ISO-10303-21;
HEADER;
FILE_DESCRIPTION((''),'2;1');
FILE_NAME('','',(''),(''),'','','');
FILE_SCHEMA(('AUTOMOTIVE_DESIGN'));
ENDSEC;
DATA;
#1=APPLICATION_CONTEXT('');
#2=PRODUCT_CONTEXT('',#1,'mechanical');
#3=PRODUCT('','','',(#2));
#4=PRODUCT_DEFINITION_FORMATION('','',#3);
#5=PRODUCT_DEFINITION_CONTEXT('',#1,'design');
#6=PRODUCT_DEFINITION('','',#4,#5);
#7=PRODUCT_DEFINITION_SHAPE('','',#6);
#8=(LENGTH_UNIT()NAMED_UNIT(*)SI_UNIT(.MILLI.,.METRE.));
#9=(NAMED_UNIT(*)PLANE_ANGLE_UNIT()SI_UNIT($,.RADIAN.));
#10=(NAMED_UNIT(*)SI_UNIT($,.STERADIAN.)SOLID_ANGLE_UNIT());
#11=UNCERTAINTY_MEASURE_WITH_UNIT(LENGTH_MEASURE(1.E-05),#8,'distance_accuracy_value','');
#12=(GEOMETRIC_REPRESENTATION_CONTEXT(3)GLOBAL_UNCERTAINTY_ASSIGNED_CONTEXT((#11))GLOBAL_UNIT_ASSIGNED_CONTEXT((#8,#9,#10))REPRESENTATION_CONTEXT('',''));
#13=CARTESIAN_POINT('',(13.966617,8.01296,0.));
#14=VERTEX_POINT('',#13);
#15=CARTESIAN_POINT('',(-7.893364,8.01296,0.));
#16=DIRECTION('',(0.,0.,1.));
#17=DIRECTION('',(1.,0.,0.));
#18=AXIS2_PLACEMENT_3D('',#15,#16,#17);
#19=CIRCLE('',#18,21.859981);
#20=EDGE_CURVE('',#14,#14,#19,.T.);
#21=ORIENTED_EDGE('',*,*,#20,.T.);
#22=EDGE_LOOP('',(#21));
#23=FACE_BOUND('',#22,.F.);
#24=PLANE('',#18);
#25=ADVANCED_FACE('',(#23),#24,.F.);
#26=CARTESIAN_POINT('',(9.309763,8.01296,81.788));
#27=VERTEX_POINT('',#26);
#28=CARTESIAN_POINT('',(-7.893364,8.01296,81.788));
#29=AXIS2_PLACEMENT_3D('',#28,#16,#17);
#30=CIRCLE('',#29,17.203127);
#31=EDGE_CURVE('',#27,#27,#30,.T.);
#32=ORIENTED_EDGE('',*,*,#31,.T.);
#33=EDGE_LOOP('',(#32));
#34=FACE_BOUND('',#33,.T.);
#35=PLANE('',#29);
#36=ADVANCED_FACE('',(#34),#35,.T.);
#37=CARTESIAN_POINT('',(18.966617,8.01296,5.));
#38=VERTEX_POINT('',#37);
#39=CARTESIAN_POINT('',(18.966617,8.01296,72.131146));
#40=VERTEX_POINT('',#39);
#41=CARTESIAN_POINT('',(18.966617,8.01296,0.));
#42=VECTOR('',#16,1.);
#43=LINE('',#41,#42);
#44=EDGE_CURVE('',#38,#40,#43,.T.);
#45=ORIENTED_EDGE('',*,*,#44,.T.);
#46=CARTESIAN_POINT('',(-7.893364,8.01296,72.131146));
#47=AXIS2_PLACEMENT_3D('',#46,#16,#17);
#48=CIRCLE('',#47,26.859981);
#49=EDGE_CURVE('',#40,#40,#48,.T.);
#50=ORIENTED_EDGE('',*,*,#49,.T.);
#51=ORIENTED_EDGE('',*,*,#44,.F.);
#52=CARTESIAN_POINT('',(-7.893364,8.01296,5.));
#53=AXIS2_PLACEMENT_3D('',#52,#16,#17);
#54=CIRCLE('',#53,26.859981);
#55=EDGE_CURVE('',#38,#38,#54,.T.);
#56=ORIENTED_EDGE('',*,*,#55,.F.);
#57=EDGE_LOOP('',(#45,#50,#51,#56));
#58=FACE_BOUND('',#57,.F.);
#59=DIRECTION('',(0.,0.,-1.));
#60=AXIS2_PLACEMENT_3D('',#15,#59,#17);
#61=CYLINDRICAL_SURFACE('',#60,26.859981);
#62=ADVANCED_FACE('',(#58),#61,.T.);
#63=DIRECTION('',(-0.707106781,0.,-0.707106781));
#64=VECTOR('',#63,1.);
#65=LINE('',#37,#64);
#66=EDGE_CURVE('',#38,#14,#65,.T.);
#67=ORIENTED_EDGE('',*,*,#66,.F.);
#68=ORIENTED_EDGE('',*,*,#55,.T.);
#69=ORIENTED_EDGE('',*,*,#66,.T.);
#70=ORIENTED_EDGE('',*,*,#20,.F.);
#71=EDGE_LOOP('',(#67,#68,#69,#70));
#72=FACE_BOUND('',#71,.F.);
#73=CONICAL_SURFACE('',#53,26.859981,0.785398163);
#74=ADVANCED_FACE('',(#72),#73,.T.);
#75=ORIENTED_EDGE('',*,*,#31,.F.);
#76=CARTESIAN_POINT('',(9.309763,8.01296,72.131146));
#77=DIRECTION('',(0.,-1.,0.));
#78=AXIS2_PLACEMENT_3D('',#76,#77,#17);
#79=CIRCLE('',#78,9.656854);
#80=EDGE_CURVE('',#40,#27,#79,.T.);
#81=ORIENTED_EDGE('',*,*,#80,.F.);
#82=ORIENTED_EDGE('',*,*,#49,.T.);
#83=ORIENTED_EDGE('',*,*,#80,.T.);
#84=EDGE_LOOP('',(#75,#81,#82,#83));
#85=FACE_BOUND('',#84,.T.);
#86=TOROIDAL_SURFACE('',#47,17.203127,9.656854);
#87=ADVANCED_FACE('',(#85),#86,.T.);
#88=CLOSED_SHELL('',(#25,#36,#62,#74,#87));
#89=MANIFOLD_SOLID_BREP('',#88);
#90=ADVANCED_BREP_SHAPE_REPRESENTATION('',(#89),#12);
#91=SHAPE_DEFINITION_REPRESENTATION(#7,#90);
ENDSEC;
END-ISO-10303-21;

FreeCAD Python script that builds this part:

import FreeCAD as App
import Part
import Sketcher


def edges_at(feature, points):
    """Names of the edges that pass closest to the given points."""
    edges = feature.Shape.Edges
    near = lambda p: min(range(len(edges)), key=lambda i: edges[i].distToShape(Part.Vertex(*p))[0])
    return sorted({f"Edge{near(p) + 1}" for p in points})

doc = App.newDocument("Part")
body = doc.addObject("PartDesign::Body", "Body")

# Sketch on XY plane
sketch1 = body.newObject("Sketcher::SketchObject", "Sketch")
sketch1.AttachmentSupport = (doc.getObject("XY_Plane"), [""])
sketch1.MapMode = "FlatFace"
sketch1.addGeometry(Part.Circle(App.Vector(-8, 8, 0), App.Vector(0, 0, 1), 27), False)
sketch1.addConstraint(Sketcher.Constraint("Diameter", 0, 53.719962))
sketch1.addConstraint(Sketcher.Constraint("DistanceY", -1, 1, 0, 3, 8.01296))
sketch1.addConstraint(Sketcher.Constraint("DistanceX", 0, 3, -1, 1, 7.893364))
pad1 = body.newObject("PartDesign::Pad", "Pad")
pad1.Profile = sketch1
pad1.Length = 81.788
doc.recompute()

fillet = body.newObject("PartDesign::Fillet", "Fillet")
fillet.Base = (pad1, edges_at(pad1, [(-34.753, 8.013, 81.788)]))
fillet.Radius = 9.656854
doc.recompute()

chamfer = body.newObject("PartDesign::Chamfer", "Chamfer")
chamfer.Base = (fillet, edges_at(fillet, [(-34.753, 8.013, 0)]))
chamfer.Size = 5

doc.recompute()
